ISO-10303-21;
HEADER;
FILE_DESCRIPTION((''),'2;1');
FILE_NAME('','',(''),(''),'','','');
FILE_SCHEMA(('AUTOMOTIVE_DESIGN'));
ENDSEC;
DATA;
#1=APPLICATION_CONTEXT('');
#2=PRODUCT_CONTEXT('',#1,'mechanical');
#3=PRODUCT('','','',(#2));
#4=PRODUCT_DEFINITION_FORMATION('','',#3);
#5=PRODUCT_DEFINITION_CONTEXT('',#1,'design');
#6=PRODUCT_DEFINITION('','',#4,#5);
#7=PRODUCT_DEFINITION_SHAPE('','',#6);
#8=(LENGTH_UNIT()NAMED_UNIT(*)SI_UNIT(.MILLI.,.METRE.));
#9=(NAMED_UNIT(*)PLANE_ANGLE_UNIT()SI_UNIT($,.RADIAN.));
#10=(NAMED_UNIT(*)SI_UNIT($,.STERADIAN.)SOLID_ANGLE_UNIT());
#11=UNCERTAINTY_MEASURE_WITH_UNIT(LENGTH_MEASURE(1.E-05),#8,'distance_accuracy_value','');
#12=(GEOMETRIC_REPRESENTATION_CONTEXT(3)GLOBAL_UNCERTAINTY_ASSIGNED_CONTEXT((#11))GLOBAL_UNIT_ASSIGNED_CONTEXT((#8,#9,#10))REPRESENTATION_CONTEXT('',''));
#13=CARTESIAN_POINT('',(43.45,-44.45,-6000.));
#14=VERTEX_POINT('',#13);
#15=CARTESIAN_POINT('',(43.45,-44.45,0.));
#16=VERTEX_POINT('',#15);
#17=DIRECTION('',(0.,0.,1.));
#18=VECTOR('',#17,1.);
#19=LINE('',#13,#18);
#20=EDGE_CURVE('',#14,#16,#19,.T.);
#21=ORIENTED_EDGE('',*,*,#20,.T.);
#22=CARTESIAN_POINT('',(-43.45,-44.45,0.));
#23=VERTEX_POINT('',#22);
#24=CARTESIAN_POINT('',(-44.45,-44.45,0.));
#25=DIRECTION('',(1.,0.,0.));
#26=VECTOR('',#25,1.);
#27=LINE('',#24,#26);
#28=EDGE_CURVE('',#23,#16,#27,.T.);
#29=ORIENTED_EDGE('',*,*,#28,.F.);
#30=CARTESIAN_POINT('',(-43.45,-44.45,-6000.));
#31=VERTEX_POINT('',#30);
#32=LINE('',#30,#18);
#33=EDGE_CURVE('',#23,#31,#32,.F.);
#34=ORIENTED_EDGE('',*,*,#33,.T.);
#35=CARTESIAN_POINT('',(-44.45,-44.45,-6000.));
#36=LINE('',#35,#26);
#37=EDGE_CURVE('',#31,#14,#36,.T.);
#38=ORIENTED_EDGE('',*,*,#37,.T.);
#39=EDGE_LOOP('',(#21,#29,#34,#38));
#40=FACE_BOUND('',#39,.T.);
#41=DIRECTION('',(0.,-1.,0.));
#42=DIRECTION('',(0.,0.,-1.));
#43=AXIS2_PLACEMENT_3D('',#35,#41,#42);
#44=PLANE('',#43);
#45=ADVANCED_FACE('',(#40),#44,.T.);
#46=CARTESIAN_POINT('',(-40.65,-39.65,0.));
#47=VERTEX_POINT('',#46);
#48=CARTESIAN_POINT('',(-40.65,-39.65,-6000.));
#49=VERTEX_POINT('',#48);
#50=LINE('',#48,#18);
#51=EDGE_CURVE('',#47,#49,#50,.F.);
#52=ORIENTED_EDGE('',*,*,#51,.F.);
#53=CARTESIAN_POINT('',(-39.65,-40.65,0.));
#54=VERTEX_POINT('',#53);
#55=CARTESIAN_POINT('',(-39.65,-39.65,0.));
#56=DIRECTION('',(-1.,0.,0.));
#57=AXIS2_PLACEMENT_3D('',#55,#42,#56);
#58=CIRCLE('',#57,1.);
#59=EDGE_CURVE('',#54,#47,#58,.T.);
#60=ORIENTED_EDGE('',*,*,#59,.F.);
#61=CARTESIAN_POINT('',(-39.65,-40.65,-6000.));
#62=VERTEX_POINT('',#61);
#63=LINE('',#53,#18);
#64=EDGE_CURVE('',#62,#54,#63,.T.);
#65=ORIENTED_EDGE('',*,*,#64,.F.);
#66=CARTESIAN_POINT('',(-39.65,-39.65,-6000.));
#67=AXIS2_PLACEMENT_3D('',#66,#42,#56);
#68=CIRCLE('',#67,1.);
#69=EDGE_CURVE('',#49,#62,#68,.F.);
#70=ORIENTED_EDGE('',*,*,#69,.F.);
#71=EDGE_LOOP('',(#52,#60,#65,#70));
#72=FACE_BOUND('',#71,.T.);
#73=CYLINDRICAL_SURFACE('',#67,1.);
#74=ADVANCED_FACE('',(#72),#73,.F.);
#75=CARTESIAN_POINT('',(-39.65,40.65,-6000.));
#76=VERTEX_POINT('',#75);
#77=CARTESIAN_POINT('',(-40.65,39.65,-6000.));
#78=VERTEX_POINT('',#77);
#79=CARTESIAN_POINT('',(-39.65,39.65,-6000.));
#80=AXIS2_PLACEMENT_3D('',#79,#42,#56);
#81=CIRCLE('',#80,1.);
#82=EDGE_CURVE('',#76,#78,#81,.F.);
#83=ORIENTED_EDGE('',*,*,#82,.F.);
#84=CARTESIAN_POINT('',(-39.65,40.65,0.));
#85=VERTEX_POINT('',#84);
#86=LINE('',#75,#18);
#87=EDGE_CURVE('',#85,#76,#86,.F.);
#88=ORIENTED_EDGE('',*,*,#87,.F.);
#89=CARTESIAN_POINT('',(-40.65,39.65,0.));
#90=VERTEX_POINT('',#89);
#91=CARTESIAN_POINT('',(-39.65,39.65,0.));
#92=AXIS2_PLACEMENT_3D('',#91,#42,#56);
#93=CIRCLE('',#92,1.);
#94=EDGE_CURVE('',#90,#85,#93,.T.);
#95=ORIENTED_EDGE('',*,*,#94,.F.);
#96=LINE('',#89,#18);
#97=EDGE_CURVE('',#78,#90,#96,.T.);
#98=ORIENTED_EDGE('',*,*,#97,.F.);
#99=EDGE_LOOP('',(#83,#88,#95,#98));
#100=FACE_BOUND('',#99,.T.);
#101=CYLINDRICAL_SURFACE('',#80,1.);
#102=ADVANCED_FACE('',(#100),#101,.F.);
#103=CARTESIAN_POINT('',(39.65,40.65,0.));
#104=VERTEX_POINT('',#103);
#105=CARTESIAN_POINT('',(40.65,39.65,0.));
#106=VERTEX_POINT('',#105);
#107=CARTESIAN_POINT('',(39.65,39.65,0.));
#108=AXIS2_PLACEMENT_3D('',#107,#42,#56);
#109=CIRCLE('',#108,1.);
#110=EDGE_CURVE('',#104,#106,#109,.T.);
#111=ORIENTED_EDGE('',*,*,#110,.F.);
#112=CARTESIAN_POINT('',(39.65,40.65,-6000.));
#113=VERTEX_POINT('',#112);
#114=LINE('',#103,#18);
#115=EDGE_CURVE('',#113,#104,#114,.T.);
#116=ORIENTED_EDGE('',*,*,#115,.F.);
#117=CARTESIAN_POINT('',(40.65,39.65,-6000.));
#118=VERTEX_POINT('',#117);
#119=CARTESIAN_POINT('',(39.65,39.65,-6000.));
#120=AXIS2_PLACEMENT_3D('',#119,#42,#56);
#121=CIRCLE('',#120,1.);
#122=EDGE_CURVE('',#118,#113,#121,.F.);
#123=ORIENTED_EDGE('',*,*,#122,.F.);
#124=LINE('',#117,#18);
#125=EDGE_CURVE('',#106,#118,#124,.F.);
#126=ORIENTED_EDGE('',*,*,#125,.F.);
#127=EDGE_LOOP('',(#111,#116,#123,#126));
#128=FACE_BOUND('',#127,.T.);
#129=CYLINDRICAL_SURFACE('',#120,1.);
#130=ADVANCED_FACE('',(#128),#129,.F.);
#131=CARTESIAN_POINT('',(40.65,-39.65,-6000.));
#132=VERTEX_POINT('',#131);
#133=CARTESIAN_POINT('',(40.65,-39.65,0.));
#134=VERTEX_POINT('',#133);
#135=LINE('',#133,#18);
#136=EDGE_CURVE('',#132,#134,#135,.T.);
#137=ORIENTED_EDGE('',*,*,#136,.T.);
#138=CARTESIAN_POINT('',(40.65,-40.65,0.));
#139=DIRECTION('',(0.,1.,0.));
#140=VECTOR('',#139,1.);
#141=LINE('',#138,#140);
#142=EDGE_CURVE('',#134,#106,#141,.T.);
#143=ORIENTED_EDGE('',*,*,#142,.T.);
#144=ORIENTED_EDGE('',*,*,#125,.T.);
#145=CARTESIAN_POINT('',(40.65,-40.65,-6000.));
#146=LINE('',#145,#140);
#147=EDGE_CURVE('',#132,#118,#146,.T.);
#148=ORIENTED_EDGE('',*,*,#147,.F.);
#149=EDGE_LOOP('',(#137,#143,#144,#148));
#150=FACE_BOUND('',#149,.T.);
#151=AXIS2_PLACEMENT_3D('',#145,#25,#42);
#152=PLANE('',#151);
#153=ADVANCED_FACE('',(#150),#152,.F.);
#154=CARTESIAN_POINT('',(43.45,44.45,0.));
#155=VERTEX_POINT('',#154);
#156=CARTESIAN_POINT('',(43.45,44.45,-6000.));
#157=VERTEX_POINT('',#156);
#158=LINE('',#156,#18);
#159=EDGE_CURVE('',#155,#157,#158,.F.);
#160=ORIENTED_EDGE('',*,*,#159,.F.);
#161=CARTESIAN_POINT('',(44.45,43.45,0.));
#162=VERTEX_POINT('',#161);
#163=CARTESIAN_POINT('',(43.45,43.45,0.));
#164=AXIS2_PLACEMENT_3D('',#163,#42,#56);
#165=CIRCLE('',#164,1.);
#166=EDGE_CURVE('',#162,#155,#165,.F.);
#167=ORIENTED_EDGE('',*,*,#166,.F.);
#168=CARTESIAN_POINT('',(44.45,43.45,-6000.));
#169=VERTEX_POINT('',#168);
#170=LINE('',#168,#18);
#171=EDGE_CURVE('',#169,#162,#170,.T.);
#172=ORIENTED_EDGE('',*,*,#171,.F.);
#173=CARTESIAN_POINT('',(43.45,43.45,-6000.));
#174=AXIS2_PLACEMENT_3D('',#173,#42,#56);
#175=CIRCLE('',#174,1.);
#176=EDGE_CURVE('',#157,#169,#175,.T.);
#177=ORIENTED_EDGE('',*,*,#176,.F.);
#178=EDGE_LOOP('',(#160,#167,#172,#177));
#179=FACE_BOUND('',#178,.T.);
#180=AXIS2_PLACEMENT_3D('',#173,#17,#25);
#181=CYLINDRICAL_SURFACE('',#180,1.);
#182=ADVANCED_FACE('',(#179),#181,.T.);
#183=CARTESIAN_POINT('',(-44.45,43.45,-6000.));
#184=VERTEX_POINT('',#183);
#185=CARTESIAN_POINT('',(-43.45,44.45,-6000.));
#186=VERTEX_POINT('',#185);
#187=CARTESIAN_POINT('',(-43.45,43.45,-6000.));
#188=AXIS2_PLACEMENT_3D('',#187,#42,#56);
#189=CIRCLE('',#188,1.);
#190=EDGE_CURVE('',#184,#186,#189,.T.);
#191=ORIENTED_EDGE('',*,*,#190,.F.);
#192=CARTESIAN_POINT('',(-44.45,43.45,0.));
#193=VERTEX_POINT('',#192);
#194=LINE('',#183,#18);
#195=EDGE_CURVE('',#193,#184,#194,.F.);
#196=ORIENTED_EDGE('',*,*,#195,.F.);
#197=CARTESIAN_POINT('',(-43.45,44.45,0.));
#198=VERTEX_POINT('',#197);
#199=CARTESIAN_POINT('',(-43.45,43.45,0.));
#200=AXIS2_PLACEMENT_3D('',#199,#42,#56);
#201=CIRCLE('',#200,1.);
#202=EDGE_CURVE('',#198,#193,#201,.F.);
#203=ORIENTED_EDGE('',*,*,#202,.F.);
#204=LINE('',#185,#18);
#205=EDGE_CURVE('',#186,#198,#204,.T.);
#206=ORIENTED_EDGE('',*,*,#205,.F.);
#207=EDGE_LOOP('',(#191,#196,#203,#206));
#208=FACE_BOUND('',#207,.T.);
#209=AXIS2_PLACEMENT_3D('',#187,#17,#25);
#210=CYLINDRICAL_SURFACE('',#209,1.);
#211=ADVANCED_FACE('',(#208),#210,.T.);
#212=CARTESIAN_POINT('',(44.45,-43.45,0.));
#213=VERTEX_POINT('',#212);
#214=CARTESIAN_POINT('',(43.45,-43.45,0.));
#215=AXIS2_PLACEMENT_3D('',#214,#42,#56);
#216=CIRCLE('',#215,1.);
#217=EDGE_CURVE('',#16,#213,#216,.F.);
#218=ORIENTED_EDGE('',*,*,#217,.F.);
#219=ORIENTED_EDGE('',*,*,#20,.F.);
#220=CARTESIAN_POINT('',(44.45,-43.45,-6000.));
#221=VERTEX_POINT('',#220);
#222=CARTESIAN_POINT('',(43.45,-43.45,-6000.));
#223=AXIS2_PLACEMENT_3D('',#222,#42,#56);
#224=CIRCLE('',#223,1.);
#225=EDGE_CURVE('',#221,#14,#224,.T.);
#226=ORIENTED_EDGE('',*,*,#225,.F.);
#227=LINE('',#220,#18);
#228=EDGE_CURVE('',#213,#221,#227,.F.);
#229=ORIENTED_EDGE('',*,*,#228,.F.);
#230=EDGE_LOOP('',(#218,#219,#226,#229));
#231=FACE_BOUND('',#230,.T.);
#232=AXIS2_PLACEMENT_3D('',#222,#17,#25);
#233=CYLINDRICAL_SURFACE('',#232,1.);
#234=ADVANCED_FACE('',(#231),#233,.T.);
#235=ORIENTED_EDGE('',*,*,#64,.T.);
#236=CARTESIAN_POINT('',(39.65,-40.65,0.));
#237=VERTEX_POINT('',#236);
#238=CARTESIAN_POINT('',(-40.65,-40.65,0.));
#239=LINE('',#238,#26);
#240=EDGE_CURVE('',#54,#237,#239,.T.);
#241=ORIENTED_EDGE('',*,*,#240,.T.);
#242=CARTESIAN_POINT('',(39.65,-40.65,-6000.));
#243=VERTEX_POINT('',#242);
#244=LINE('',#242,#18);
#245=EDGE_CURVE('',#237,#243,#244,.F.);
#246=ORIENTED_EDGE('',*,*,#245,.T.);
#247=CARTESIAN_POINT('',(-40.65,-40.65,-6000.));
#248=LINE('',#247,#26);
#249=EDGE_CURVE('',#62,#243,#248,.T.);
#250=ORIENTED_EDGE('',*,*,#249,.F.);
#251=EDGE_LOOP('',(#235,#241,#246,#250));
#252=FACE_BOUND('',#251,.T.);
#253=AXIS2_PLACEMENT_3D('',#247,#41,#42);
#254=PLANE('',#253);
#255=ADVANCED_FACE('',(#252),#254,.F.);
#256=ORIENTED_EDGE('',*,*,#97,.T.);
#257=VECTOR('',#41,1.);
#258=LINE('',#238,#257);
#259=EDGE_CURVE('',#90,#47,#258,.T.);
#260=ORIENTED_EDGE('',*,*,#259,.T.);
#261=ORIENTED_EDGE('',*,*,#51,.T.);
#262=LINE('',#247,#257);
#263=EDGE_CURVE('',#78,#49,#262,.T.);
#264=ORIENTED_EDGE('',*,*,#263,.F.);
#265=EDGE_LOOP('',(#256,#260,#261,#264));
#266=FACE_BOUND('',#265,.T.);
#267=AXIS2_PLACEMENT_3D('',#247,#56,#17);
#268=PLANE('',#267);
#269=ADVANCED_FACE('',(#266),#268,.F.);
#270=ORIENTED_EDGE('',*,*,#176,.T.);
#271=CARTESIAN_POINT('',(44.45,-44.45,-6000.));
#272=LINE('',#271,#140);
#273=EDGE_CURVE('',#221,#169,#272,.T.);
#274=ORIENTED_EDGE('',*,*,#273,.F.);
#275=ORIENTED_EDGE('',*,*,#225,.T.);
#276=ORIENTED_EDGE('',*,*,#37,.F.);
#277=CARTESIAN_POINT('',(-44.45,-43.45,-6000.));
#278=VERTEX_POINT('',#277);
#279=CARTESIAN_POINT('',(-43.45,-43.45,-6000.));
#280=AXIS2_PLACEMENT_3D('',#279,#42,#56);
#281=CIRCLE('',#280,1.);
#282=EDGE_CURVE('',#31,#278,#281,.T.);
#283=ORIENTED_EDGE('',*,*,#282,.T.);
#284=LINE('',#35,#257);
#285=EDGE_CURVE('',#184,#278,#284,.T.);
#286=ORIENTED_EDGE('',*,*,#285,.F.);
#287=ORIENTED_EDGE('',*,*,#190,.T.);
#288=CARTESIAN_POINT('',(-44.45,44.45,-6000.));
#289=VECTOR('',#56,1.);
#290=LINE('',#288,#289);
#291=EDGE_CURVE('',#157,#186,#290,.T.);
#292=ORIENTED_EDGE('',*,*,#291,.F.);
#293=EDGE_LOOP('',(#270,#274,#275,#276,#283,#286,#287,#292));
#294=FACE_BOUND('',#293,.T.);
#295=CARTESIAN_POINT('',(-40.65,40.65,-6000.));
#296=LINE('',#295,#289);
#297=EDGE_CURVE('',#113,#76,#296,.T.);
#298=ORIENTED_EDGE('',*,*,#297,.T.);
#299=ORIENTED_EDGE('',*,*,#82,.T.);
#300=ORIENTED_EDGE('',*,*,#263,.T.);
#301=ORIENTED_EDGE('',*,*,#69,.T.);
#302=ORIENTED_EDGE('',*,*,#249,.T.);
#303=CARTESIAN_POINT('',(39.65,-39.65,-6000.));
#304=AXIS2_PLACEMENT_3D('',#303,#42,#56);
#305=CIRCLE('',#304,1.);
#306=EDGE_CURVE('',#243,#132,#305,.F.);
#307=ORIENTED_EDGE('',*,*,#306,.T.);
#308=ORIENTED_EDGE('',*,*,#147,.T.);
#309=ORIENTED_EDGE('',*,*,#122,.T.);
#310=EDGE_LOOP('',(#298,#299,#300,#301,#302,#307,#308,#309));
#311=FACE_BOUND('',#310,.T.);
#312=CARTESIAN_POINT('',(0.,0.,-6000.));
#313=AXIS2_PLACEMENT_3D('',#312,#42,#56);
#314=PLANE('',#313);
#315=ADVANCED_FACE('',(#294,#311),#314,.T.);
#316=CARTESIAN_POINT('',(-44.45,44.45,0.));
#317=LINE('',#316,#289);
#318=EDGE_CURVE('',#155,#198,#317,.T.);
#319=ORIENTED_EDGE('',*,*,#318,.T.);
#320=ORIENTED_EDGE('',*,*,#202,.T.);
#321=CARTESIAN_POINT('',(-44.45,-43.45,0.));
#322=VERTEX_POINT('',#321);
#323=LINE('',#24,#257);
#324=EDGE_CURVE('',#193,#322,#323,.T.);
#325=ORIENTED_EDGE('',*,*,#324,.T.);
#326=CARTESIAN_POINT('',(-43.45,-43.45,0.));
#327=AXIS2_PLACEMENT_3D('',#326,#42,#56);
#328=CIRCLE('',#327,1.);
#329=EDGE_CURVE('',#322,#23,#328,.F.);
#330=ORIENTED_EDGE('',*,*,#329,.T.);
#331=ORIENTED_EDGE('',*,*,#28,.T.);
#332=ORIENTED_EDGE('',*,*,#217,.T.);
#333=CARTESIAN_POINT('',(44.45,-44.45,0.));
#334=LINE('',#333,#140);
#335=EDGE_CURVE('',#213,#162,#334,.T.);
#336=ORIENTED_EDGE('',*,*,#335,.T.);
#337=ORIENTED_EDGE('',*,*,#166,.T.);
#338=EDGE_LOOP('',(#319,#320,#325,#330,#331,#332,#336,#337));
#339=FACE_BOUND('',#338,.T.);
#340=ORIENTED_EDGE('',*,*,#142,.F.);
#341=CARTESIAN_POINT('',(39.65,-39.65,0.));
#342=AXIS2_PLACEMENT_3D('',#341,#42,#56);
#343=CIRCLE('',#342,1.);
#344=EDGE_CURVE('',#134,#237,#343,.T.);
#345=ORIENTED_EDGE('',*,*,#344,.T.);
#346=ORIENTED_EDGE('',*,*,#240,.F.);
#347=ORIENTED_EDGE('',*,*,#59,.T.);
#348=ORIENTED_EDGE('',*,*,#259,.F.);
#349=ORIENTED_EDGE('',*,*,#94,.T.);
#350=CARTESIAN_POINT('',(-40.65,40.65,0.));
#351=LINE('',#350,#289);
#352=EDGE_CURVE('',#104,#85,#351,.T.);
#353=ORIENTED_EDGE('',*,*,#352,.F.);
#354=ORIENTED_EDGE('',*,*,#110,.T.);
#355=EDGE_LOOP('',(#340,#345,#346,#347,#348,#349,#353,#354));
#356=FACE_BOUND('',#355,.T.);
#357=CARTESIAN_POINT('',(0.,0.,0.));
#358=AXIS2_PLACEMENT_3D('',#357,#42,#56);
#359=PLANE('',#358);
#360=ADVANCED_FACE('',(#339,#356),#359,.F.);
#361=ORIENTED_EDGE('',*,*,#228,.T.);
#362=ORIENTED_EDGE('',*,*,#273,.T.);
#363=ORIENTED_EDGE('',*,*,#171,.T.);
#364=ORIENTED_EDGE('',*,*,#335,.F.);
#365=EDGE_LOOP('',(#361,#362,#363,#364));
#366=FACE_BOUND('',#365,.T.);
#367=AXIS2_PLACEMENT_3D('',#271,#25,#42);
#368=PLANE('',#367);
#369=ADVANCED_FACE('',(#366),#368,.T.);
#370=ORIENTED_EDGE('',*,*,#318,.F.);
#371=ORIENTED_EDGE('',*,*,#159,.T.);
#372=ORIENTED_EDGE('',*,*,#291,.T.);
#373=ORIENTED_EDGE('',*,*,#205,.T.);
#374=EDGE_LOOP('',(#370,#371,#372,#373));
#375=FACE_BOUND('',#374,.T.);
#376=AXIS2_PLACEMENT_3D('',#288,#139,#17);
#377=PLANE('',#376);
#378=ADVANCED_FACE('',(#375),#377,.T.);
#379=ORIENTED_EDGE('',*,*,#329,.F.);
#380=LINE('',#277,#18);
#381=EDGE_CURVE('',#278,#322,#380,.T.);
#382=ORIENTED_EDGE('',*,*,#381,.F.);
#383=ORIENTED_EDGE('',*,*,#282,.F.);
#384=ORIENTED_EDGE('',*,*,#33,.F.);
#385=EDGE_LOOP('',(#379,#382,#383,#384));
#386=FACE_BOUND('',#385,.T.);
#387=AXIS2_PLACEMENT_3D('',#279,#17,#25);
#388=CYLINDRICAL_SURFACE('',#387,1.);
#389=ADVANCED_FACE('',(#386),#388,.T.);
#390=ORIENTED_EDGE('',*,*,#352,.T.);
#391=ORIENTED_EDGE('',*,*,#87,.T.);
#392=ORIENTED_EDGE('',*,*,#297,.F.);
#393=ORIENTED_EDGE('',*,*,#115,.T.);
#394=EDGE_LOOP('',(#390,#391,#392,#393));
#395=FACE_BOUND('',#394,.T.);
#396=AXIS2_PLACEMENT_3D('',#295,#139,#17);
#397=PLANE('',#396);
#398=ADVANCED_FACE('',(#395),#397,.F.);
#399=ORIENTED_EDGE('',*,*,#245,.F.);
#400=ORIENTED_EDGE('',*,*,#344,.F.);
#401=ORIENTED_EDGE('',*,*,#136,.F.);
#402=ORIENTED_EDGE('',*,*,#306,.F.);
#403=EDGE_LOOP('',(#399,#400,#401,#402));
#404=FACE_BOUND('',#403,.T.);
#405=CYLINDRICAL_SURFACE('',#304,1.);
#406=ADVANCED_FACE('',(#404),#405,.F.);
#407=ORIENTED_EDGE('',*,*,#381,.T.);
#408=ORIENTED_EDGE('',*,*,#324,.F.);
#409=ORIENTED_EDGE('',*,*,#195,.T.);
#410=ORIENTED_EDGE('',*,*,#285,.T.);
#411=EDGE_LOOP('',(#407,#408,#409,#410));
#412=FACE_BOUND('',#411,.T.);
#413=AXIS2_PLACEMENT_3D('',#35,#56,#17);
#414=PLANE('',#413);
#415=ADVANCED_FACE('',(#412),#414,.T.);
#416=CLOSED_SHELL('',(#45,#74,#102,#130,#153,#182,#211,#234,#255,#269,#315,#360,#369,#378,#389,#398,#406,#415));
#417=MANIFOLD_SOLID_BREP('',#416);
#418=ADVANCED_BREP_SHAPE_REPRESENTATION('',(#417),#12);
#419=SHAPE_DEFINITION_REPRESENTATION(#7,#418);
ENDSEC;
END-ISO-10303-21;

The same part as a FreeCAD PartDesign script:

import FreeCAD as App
import Part
import Sketcher

V = App.Vector


def edges_at(feature, points):
    """Names of the edges that pass closest to the given points."""
    edges = feature.Shape.Edges
    near = lambda p: min(range(len(edges)), key=lambda i: edges[i].distToShape(Part.Vertex(*p))[0])
    return sorted({f"Edge{near(p) + 1}" for p in points})

doc = App.newDocument("Part")
body = doc.addObject("PartDesign::Body", "Body")

# Sketch on XY plane
sketch1 = doc.addObject("Sketcher::SketchObject", "Sketch")
body.addObject(sketch1)
sketch1.AttachmentSupport = (doc.XY_Plane, [""])
sketch1.MapMode = "FlatFace"
sketch1.addGeometry(Part.LineSegment(V(-44, 44, 0), V(-44, -44, 0)), False)
sketch1.addGeometry(Part.LineSegment(V(-44, -44, 0), V(44, -44, 0)), False)
sketch1.addGeometry(Part.LineSegment(V(44, -44, 0), V(44, 44, 0)), False)
sketch1.addGeometry(Part.LineSegment(V(44, 44, 0), V(-44, 44, 0)), False)
sketch1.addGeometry(Part.LineSegment(V(41, -41, 0), V(-41, -41, 0)), False)
sketch1.addGeometry(Part.LineSegment(V(-41, -41, 0), V(-41, 41, 0)), False)
sketch1.addGeometry(Part.LineSegment(V(-41, 41, 0), V(41, 41, 0)), False)
sketch1.addGeometry(Part.LineSegment(V(41, 41, 0), V(41, -41, 0)), False)
sketch1.addConstraint(Sketcher.Constraint("Coincident", 0, 2, 1, 1))
sketch1.addConstraint(Sketcher.Constraint("Coincident", 1, 2, 2, 1))
sketch1.addConstraint(Sketcher.Constraint("Coincident", 2, 2, 3, 1))
sketch1.addConstraint(Sketcher.Constraint("Coincident", 3, 2, 0, 1))
sketch1.addConstraint(Sketcher.Constraint("Coincident", 4, 2, 5, 1))
sketch1.addConstraint(Sketcher.Constraint("Coincident", 5, 2, 6, 1))
sketch1.addConstraint(Sketcher.Constraint("Coincident", 6, 2, 7, 1))
sketch1.addConstraint(Sketcher.Constraint("Coincident", 7, 2, 4, 1))
sketch1.addConstraint(Sketcher.Constraint("Vertical", 0))
sketch1.addConstraint(Sketcher.Constraint("Horizontal", 1))
sketch1.addConstraint(Sketcher.Constraint("Vertical", 2))
sketch1.addConstraint(Sketcher.Constraint("Horizontal", 3))
sketch1.addConstraint(Sketcher.Constraint("Horizontal", 4))
sketch1.addConstraint(Sketcher.Constraint("Vertical", 5))
sketch1.addConstraint(Sketcher.Constraint("Horizontal", 6))
sketch1.addConstraint(Sketcher.Constraint("Vertical", 7))
sketch1.addConstraint(Sketcher.Constraint("Symmetric", 0, 2, 2, 2, -1, 1))
sketch1.addConstraint(Sketcher.Constraint("Symmetric", 4, 2, 6, 2, -1, 1))
sketch1.addConstraint(Sketcher.Constraint("Equal", 3, 0))
sketch1.addConstraint(Sketcher.Constraint("Equal", 6, 5))
sketch1.addConstraint(Sketcher.Constraint("DistanceX", 1, 1, 1, 2, 88.9))
sketch1.addConstraint(Sketcher.Constraint("DistanceX", 4, 2, 4, 1, 81.3))
pad1 = doc.addObject("PartDesign::Pad", "Pad")
body.addObject(pad1)
pad1.Profile = sketch1
pad1.Length = 6000
pad1.Reversed = True
doc.recompute()

fillet = doc.addObject("PartDesign::Fillet", "Fillet")
body.addObject(fillet)
fillet.Base = (pad1, edges_at(pad1, [
    (40.65, -40.65, -3000),
    (-40.65, -40.65, -3000),
    (-40.65, 40.65, -3000),
    (40.65, 40.65, -3000),
    (44.45, -44.45, -3000),
    (-44.45, -44.45, -3000),
    (-44.45, 44.45, -3000),
    (44.45, 44.45, -3000),
]))
fillet.Radius = 1

doc.recompute()
